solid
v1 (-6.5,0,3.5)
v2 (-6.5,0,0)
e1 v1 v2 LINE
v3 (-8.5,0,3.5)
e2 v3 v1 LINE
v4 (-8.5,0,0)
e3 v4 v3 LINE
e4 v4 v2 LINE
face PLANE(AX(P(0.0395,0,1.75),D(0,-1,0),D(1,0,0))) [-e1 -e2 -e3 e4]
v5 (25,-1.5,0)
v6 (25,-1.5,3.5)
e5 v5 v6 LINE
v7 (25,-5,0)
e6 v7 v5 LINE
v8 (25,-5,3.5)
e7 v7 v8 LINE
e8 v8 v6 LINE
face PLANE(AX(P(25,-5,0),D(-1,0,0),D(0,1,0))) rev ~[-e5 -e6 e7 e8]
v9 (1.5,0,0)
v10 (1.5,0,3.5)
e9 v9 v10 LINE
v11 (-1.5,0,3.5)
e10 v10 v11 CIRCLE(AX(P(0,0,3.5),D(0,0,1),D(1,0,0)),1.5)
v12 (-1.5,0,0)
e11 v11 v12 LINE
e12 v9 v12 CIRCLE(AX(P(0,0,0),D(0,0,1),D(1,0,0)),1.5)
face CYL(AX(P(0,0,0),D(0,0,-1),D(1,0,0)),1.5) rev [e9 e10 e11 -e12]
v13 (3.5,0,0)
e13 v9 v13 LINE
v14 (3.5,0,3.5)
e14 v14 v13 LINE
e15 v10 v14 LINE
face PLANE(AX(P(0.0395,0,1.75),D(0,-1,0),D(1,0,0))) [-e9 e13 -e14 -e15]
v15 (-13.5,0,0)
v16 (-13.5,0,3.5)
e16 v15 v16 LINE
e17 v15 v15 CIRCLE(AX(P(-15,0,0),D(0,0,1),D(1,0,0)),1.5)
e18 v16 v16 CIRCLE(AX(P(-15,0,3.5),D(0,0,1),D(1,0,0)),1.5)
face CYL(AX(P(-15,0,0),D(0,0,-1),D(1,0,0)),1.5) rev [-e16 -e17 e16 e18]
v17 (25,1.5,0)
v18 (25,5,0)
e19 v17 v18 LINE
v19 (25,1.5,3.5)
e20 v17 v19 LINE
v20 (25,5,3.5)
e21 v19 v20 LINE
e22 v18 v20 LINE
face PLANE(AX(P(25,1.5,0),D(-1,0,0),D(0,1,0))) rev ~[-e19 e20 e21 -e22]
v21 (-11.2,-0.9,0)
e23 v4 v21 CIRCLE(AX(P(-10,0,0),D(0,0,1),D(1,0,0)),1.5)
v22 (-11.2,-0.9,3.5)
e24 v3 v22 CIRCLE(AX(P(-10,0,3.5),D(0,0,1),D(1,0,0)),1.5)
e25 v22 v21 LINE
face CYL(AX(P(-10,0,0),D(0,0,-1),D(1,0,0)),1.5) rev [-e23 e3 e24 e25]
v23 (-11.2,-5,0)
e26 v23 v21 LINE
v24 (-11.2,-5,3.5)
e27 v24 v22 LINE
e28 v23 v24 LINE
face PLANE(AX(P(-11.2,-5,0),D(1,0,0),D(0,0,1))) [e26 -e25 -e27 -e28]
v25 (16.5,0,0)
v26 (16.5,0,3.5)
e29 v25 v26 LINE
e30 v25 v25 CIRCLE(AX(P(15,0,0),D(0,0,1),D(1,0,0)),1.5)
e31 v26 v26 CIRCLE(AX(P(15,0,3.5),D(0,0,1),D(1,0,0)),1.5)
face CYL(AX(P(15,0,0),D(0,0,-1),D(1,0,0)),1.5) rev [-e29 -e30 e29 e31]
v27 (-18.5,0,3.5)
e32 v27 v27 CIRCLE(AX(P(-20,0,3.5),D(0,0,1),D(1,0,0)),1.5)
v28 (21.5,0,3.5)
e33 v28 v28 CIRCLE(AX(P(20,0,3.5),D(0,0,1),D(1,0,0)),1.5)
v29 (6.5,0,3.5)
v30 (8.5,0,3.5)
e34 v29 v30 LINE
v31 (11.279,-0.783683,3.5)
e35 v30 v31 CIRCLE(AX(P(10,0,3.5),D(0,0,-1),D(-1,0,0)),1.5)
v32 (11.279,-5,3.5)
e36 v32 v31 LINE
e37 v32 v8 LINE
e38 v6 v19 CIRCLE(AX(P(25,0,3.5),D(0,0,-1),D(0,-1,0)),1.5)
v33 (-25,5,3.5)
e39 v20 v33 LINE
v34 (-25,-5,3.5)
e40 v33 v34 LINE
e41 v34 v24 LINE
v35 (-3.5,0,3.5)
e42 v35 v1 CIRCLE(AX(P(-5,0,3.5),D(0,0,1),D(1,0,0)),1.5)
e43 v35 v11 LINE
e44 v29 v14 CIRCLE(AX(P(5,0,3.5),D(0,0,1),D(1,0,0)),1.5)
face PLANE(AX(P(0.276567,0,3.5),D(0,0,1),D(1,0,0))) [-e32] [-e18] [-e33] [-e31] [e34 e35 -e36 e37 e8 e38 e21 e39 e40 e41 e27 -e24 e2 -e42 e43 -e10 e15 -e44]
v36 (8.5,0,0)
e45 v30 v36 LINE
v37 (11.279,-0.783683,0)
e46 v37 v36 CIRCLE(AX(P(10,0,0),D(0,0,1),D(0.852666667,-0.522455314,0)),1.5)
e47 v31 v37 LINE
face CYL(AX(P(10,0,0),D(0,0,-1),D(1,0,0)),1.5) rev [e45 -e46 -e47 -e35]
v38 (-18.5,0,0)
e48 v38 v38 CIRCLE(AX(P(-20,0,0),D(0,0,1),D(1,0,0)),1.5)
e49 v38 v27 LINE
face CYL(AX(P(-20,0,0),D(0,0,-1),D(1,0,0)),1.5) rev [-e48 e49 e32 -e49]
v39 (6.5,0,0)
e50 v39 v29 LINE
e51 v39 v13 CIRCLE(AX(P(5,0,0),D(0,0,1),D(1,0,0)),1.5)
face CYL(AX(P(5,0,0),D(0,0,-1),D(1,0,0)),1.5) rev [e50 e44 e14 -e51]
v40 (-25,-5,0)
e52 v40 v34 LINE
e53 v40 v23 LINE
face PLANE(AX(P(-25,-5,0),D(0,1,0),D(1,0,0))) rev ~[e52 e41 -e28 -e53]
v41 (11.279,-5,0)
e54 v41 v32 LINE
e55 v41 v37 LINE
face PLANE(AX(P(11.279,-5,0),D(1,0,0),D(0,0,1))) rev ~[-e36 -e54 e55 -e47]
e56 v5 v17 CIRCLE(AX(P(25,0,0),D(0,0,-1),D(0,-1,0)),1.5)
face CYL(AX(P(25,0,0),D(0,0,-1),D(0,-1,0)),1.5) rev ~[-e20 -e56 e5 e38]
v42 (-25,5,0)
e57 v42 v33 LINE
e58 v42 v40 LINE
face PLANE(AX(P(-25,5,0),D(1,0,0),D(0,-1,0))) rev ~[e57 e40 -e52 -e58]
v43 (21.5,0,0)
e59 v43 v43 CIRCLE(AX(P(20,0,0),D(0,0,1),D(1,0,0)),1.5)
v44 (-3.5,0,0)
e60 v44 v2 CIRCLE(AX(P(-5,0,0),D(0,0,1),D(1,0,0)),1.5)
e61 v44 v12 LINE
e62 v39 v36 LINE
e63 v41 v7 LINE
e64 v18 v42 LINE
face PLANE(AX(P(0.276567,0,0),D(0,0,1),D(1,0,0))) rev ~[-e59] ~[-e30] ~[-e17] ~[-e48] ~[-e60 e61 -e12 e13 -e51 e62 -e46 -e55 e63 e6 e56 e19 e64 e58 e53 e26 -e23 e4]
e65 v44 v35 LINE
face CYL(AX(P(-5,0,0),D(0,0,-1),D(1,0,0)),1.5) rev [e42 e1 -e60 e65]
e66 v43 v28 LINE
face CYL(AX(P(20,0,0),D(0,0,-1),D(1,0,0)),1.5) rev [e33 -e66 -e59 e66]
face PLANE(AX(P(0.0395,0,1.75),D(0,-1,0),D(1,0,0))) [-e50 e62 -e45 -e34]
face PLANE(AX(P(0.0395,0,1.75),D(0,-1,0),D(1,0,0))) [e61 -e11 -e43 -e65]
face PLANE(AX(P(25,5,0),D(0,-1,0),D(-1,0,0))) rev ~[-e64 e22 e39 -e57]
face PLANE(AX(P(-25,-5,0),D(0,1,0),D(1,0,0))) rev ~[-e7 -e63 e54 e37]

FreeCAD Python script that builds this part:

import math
import FreeCAD as App
import Part
import Sketcher

V = App.Vector


def add_polygon(sketch, points):
    """Adds a closed chain of lines whose ends are joined by coincident constraints."""
    first, n = sketch.GeometryCount, len(points)
    for a, b in zip(points, points[1:] + points[:1]):
        sketch.addGeometry(Part.LineSegment(App.Vector(*a, 0), App.Vector(*b, 0)), False)
    for i in range(n):
        sketch.addConstraint(Sketcher.Constraint("Coincident", first + i, 2, first + (i + 1) % n, 1))

doc = App.newDocument("Part")
body = doc.addObject("PartDesign::Body", "Body")

# Sketch on XY plane
sketch1 = doc.addObject("Sketcher::SketchObject", "Sketch")
body.addObject(sketch1)
sketch1.AttachmentSupport = (doc.XY_Plane, [""])
sketch1.MapMode = "FlatFace"
sketch1.addGeometry([
    Part.LineSegment(V(-25, -5, 0), V(25, -5, 0)),  # 0
    Part.LineSegment(V(25, -5, 0), V(25, -1.5, 0)),  # 1
    Part.ArcOfCircle(Part.Circle(V(25, 0, 0), V(0, 0, 1), 1.5), math.radians(90), math.radians(270)),  # 2
    Part.LineSegment(V(25, 1.5, 0), V(25, 5, 0)),  # 3
    Part.LineSegment(V(25, 5, 0), V(-25, 5, 0)),  # 4
    Part.LineSegment(V(-25, 5, 0), V(-25, -5, 0)),  # 5
    Part.Circle(V(-20, 0, 0), V(0, 0, 1), 1.5),  # 6
    Part.Circle(V(-15, 0, 0), V(0, 0, 1), 1.5),  # 7
    Part.Circle(V(-10, 0, 0), V(0, 0, 1), 1.5),  # 8
    Part.Circle(V(-5, 0, 0), V(0, 0, 1), 1.5),  # 9
    Part.Circle(V(0, 0, 0), V(0, 0, 1), 1.5),  # 10
    Part.Circle(V(5, 0, 0), V(0, 0, 1), 1.5),  # 11
    Part.Circle(V(10, 0, 0), V(0, 0, 1), 1.5),  # 12
    Part.Circle(V(15, 0, 0), V(0, 0, 1), 1.5),  # 13
    Part.Circle(V(20, 0, 0), V(0, 0, 1), 1.5),  # 14
], False)
sketch1.addConstraint([
    Sketcher.Constraint("Coincident", 0, 2, 1, 1),
    Sketcher.Constraint("Coincident", 1, 2, 2, 2),
    Sketcher.Constraint("Coincident", 2, 1, 3, 1),
    Sketcher.Constraint("Coincident", 3, 2, 4, 1),
    Sketcher.Constraint("Coincident", 4, 2, 5, 1),
    Sketcher.Constraint("Coincident", 5, 2, 0, 1),
    Sketcher.Constraint("Horizontal", 0),
    Sketcher.Constraint("Vertical", 1),
    Sketcher.Constraint("Vertical", 3),
    Sketcher.Constraint("Horizontal", 4),
    Sketcher.Constraint("Vertical", 5),
    Sketcher.Constraint("Coincident", 10, 3, -1, 1),
    Sketcher.Constraint("Equal", 2, 6),
    Sketcher.Constraint("Equal", 6, 7),
    Sketcher.Constraint("Equal", 7, 8),
    Sketcher.Constraint("Equal", 8, 9),
    Sketcher.Constraint("Equal", 9, 10),
    Sketcher.Constraint("Equal", 10, 11),
    Sketcher.Constraint("Equal", 11, 12),
    Sketcher.Constraint("Equal", 12, 13),
    Sketcher.Constraint("Equal", 13, 14),
    Sketcher.Constraint("Symmetric", 9, 3, 11, 3, -1, 1),
    Sketcher.Constraint("Symmetric", 8, 3, 12, 3, -1, 1),
    Sketcher.Constraint("Symmetric", 7, 3, 13, 3, -1, 1),
    Sketcher.Constraint("Symmetric", 6, 3, 14, 3, -1, 1),
    Sketcher.Constraint("Symmetric", 0, 2, 4, 2, -1, 1),
    Sketcher.Constraint("Symmetric", 1, 2, 2, 1, -1),
    Sketcher.Constraint("PointOnObject", 6, 3, -1),
    Sketcher.Constraint("PointOnObject", 7, 3, -1),
    Sketcher.Constraint("PointOnObject", 8, 3, -1),
    Sketcher.Constraint("PointOnObject", 9, 3, -1),
    Sketcher.Constraint("Vertical", 2, 3, 0, 2),
    Sketcher.Constraint("Diameter", 6, 3.0),
    Sketcher.Constraint("DistanceX", 0, 1, 0, 2, 50.0),
    Sketcher.Constraint("DistanceY", 5, 2, 5, 1, 10.0),
    Sketcher.Constraint("DistanceX", 6, 3, -1, 1, 20.0),
    Sketcher.Constraint("DistanceX", 7, 3, -1, 1, 15.0),
    Sketcher.Constraint("DistanceX", 8, 3, -1, 1, 10.0),
    Sketcher.Constraint("DistanceX", 9, 3, -1, 1, 5.0),
])
pad1 = doc.addObject("PartDesign::Pad", "Pad")
body.addObject(pad1)
pad1.Profile = sketch1
pad1.Length = 3.5

# Sketch on XZ plane
sketch2 = doc.addObject("Sketcher::SketchObject", "Sketch001")
body.addObject(sketch2)
sketch2.AttachmentSupport = (doc.XZ_Plane, [""])
sketch2.MapMode = "FlatFace"
sketch2.AttachmentOffset = App.Placement(V(0, 0, 5), App.Rotation())
add_polygon(sketch2, [(-11.2, 3.5), (-11.2, 0), (11.3, 0), (11.3, 3.5)])  # lines 0-3
sketch2.addConstraint([
    Sketcher.Constraint("Vertical", 0),
    Sketcher.Constraint("Horizontal", 1),
    Sketcher.Constraint("Vertical", 2),
    Sketcher.Constraint("Horizontal", 3),
    Sketcher.Constraint("PointOnObject", 0, 2, -1),
    Sketcher.Constraint("DistanceY", 0, 2, 0, 1, 3.5),
    Sketcher.Constraint("DistanceX", 0, 2, -1, 1, 11.2),
    Sketcher.Constraint("DistanceX", 1, 1, 1, 2, 22.479),
])
pocket1 = doc.addObject("PartDesign::Pocket", "Pocket")
body.addObject(pocket1)
pocket1.Profile = sketch2
pocket1.Length = 5

doc.recompute()
